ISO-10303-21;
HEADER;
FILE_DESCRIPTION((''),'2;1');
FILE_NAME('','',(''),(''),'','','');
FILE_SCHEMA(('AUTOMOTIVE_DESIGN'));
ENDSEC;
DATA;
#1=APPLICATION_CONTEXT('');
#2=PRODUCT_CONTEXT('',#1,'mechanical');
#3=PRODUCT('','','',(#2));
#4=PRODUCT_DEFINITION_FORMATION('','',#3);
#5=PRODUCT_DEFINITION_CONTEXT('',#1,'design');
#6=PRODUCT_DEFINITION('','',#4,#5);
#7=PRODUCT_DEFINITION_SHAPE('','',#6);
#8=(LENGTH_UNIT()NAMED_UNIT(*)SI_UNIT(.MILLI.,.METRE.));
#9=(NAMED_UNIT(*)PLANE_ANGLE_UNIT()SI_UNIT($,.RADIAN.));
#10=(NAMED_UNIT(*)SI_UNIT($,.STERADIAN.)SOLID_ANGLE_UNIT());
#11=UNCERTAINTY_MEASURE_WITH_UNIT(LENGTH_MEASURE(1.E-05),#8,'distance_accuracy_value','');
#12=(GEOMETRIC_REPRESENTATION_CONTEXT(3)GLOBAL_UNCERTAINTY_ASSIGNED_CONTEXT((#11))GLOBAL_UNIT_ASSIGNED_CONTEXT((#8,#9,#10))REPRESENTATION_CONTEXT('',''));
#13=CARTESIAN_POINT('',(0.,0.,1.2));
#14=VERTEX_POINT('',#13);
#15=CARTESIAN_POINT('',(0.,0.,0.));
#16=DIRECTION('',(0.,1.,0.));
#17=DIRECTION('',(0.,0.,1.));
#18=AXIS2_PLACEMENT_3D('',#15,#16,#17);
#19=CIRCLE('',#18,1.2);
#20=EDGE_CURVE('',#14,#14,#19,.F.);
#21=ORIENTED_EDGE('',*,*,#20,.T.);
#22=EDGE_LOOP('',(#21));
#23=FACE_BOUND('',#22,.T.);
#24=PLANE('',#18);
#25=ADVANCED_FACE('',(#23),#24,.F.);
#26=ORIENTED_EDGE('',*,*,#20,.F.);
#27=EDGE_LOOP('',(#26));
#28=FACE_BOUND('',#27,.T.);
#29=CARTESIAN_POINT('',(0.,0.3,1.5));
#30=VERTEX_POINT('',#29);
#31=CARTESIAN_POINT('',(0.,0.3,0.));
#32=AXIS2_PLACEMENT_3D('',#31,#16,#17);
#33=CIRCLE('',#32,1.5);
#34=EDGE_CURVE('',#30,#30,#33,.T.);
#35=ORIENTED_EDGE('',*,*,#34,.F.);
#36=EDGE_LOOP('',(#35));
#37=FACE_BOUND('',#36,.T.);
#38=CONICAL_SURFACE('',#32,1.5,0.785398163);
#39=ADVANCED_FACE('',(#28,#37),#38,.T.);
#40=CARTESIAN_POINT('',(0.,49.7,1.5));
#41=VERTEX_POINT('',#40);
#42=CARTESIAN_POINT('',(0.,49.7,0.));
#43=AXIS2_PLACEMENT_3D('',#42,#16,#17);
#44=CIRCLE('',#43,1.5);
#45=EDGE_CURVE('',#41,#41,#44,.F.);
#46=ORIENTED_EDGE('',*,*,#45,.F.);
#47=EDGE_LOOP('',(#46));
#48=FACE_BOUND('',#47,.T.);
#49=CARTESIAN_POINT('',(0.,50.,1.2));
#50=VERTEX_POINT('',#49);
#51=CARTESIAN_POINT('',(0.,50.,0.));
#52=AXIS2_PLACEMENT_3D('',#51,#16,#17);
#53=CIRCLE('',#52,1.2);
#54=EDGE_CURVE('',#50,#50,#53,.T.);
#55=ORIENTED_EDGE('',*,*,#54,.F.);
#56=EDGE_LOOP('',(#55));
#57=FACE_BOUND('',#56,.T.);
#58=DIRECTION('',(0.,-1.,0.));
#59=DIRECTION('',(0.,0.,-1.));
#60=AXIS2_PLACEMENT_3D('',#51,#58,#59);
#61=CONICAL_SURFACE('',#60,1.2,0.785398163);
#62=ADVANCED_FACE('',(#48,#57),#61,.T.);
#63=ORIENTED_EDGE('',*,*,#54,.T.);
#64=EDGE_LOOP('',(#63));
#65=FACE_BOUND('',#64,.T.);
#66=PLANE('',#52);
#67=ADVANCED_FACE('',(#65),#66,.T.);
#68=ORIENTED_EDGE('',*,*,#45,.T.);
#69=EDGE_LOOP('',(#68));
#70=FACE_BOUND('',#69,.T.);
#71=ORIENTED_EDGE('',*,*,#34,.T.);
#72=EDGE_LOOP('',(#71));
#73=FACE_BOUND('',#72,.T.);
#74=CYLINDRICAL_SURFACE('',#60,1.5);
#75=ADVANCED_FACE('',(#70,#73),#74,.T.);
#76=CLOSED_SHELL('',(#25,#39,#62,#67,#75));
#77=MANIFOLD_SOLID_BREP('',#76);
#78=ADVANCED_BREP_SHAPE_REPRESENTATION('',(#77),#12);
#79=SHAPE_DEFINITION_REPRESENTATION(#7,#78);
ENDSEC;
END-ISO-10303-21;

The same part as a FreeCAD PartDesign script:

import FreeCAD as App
import Part
import Sketcher

V = App.Vector


def edges_at(feature, points):
    """Names of the edges that pass closest to the given points."""
    edges = feature.Shape.Edges
    near = lambda p: min(range(len(edges)), key=lambda i: edges[i].distToShape(Part.Vertex(*p))[0])
    return sorted({f"Edge{near(p) + 1}" for p in points})

doc = App.newDocument("Part")
body = doc.addObject("PartDesign::Body", "Body")

# Sketch on XZ plane
sketch1 = body.newObject("Sketcher::SketchObject", "Sketch")
sketch1.AttachmentSupport = (doc.getObject("XZ_Plane"), [""])
sketch1.MapMode = "FlatFace"
sketch1.addGeometry(Part.Circle(V(0, 0, 0), V(0, 0, 1), 1.5), False)
sketch1.addConstraint([
    Sketcher.Constraint("Coincident", 0, 3, -1, 1),
    Sketcher.Constraint("Diameter", 0, 3.0),
])
pad1 = body.newObject("PartDesign::Pad", "Pad")
pad1.Profile = sketch1
pad1.Length = 50
pad1.Reversed = True
doc.recompute()

chamfer = body.newObject("PartDesign::Chamfer", "Chamfer")
chamfer.Base = (pad1, edges_at(pad1, [(0, 0, -1.5), (0, 50, -1.5)]))
chamfer.Size = 0.3

doc.recompute()
